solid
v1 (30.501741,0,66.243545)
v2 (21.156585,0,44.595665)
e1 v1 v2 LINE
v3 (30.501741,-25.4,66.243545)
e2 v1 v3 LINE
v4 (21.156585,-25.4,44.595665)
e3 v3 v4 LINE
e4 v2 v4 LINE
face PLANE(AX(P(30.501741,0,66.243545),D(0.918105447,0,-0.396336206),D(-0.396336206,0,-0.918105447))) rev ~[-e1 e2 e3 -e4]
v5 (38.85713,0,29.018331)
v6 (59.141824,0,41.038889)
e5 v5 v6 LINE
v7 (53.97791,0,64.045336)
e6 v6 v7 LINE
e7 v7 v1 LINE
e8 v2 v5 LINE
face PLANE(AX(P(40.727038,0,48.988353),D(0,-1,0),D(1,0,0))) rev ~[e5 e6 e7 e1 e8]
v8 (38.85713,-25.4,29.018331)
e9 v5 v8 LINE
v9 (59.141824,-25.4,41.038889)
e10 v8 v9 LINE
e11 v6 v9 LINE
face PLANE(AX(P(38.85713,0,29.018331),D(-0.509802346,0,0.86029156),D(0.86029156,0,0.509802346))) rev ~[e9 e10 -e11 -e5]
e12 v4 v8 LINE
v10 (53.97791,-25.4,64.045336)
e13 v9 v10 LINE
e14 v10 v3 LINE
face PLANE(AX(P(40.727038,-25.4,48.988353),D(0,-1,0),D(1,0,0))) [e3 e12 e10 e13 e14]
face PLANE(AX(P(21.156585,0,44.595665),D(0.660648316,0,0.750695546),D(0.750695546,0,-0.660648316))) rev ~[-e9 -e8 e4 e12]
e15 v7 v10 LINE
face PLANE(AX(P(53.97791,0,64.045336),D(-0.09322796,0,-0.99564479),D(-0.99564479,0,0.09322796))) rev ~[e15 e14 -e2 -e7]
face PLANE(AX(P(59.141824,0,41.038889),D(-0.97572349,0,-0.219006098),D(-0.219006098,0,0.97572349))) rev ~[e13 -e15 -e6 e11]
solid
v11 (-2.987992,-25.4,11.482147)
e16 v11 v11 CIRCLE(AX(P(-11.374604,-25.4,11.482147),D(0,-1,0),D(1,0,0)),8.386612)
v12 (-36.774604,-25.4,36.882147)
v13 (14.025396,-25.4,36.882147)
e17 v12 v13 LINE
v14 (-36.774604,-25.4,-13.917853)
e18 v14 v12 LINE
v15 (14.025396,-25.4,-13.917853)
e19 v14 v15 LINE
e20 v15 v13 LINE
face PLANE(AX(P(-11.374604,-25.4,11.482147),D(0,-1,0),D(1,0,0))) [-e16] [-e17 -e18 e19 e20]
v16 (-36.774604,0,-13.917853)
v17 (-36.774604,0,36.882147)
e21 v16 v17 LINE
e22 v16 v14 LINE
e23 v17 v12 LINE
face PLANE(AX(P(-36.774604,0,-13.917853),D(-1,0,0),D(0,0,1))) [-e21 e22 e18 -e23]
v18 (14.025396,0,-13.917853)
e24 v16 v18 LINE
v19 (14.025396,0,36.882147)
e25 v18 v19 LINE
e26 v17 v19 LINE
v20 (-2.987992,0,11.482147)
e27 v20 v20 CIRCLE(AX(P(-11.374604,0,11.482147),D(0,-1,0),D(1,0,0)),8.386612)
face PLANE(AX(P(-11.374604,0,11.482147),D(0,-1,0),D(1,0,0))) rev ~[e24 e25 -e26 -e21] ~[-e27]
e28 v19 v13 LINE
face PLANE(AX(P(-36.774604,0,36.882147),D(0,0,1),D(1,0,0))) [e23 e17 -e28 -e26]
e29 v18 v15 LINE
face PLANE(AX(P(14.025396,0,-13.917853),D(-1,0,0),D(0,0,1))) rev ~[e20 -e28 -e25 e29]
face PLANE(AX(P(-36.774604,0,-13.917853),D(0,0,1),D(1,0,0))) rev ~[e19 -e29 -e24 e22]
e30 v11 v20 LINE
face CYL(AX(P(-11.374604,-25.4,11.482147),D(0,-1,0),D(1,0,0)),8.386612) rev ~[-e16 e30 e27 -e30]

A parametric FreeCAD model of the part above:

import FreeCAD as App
import Part
import Sketcher
Q = App.Units.Quantity


def add_polygon(sketch, points):
    """Adds a closed chain of lines whose ends are joined by coincident constraints."""
    first, n = sketch.GeometryCount, len(points)
    for a, b in zip(points, points[1:] + points[:1]):
        sketch.addGeometry(Part.LineSegment(App.Vector(*a, 0), App.Vector(*b, 0)), False)
    for i in range(n):
        sketch.addConstraint(Sketcher.Constraint("Coincident", first + i, 2, first + (i + 1) % n, 1))

doc = App.newDocument("Part")
body = doc.addObject("PartDesign::Body", "Body")

sketch1 = body.newObject("Sketcher::SketchObject", "Sketch")
sketch1.AttachmentSupport = (doc.getObject("XZ_Plane"), [""])
sketch1.MapMode = "FlatFace"
add_polygon(sketch1, [(-37, 37), (-37, -14), (14, -14), (14, 37)])
sketch1.addConstraint(Sketcher.Constraint("Vertical", 0))
sketch1.addConstraint(Sketcher.Constraint("Horizontal", 1))
sketch1.addConstraint(Sketcher.Constraint("Vertical", 2))
sketch1.addConstraint(Sketcher.Constraint("Horizontal", 3))
sketch1.addConstraint(Sketcher.Constraint("Equal", 3, 0))
sketch1.addConstraint(Sketcher.Constraint("DistanceX", 1, 1, 1, 2, Q("2 in")))
sketch1.addConstraint(Sketcher.Constraint("DistanceX", 0, 2, -1, 1, Q("36.774604 mm")))
sketch1.addConstraint(Sketcher.Constraint("DistanceY", 0, 2, -1, 1, Q("13.917853 mm")))
pad1 = body.newObject("PartDesign::Pad", "Pad")
pad1.Profile = sketch1
pad1.Length = Q("1 in")

sketch2 = body.newObject("Sketcher::SketchObject", "Sketch001")
sketch2.AttachmentSupport = (doc.getObject("XZ_Plane"), [""])
sketch2.MapMode = "FlatFace"
sketch2.AttachmentOffset = App.Placement(App.Vector(0, 0, 1 * 25.4), App.Rotation())
sketch2.addGeometry(Part.Circle(App.Vector(-11, 11, 0), App.Vector(0, 0, 1), 8), False)
sketch2.addConstraint(Sketcher.Constraint("Diameter", 0, Q("16.773224 mm")))
sketch2.addConstraint(Sketcher.Constraint("DistanceX", 0, 3, -1, 1, Q("11.374604 mm")))
sketch2.addConstraint(Sketcher.Constraint("DistanceY", -1, 1, 0, 3, Q("11.482147 mm")))
pocket1 = body.newObject("PartDesign::Pocket", "Pocket")
pocket1.Profile = sketch2
pocket1.Type = "ThroughAll"
body2 = doc.addObject("PartDesign::Body", "Body001")

sketch3 = body2.newObject("Sketcher::SketchObject", "Sketch002")
sketch3.AttachmentSupport = (doc.getObject("XZ_Plane001"), [""])
sketch3.MapMode = "FlatFace"
add_polygon(sketch3, [(39, 29), (59, 41), (54, 64), (31, 66), (21, 45)])
sketch3.addConstraint(Sketcher.Constraint("Equal", 0, 1))
sketch3.addConstraint(Sketcher.Constraint("Equal", 1, 2))
sketch3.addConstraint(Sketcher.Constraint("Equal", 2, 3))
sketch3.addConstraint(Sketcher.Constraint("Equal", 3, 4))
sketch3.addConstraint(Sketcher.Constraint("Distance", 0, Q("23.57886 mm")))
sketch3.addConstraint(Sketcher.Constraint("DistanceY", -1, 1, 0, 2, Q("41.038889 mm")))
sketch3.addConstraint(Sketcher.Constraint("DistanceX", -1, 1, 1, 2, Q("53.97791 mm")))
sketch3.addConstraint(Sketcher.Constraint("DistanceX", -1, 1, 2, 2, Q("30.501741 mm")))
sketch3.addConstraint(Sketcher.Constraint("DistanceX", -1, 1, 4, 2, Q("38.85713 mm")))
sketch3.addConstraint(Sketcher.Constraint("DistanceY", -1, 1, 4, 2, Q("29.018331 mm")))
pad2 = body2.newObject("PartDesign::Pad", "Pad001")
pad2.Profile = sketch3
pad2.Length = Q("1 in")

doc.recompute()
